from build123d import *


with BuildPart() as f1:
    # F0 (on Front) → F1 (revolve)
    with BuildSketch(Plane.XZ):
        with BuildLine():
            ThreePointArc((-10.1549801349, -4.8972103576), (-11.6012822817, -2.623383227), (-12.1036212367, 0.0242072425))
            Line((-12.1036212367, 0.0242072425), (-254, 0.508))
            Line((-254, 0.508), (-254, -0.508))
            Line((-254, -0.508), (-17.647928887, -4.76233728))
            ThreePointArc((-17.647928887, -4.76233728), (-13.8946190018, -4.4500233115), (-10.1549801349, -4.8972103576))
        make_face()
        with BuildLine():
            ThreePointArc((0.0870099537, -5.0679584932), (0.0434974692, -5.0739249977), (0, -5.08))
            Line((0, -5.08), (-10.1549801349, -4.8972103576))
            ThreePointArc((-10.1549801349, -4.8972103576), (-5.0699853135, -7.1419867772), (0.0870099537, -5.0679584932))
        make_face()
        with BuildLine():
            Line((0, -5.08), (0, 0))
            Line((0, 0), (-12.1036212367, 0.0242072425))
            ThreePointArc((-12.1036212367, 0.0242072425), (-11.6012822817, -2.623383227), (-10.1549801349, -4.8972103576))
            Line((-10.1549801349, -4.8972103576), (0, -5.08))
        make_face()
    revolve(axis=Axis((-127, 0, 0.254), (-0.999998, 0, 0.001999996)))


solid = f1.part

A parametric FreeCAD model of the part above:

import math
import FreeCAD as App
import Part
import Sketcher
from FreeCAD import Vector
Q = App.Units.Quantity

doc = App.newDocument("Part")
body = doc.addObject("PartDesign::Body", "Body")

sketch1 = body.newObject("Sketcher::SketchObject", "Sketch")
sketch1.AttachmentSupport = (doc.getObject("XZ_Plane"), [""])
sketch1.MapMode = "FlatFace"
sketch1.addGeometry([
    Part.LineSegment(Vector(-12.1, 0.02, 0), Vector(-254, 0.51, 0)),
    Part.LineSegment(Vector(-254, 0.51, 0), Vector(-254, -0.51, 0)),
    Part.LineSegment(Vector(-254, -0.51, 0), Vector(-17.65, -4.76, 0)),
    Part.ArcOfCircle(Part.Circle(Vector(-14.23, -23.12, 0), Vector(0, 0, 1), 18.67), math.radians(77), math.radians(101)),
    Part.ArcOfCircle(Part.Circle(Vector(-4.95, 0.01, 0), Vector(0, 0, 1), 7.15), math.radians(-137), math.radians(-45)),
    Part.ArcOfCircle(Part.Circle(Vector(2.46, -22.52, 0), Vector(0, 0, 1), 17.61), math.radians(97.74), math.radians(98.02)),
    Part.LineSegment(Vector(0, -5.08, 0), Vector(0, 0, 0)),
    Part.LineSegment(Vector(0, 0, 0), Vector(-12.1, 0.02, 0)),
], False)
sketch1.addGeometry(Part.LineSegment(Vector(2.5, -0.01, 0), Vector(-254, 0.51, 0)), True)
sketch1.addConstraint([
    Sketcher.Constraint("Coincident", 0, 2, 1, 1),
    Sketcher.Constraint("Coincident", 1, 2, 2, 1),
    Sketcher.Constraint("Coincident", 2, 2, 3, 2),
    Sketcher.Constraint("Coincident", 3, 1, 4, 1),
    Sketcher.Constraint("Coincident", 4, 2, 5, 1),
    Sketcher.Constraint("Coincident", 5, 2, 6, 1),
    Sketcher.Constraint("Coincident", 6, 2, 7, 1),
    Sketcher.Constraint("Coincident", 7, 2, 0, 1),
    Sketcher.Constraint("Vertical", 1),
    Sketcher.Constraint("Vertical", 6),
    Sketcher.Constraint("Coincident", 6, 2, -1, 1),
    Sketcher.Constraint("Coincident", 8, 2, 0, 2),
    Sketcher.Constraint("Parallel", 0, 7),
    Sketcher.Constraint("Parallel", 7, 8),
    Sketcher.Constraint("DistanceY", 6, 1, 6, 2, Q("0.2 in")),
    Sketcher.Constraint("DistanceX", 0, 2, -1, 1, Q("10 in")),
    Sketcher.Constraint("DistanceY", 1, 2, 1, 1, Q("0.04 in")),
    Sketcher.Constraint("DistanceY", -1, 1, 0, 2, Q("0.02 in")),
    Sketcher.Constraint("Radius", 3, 18.673547),
    Sketcher.Constraint("Radius", 4, 7.152882),
    Sketcher.Constraint("Radius", 5, 17.610723),
    Sketcher.Constraint("DistanceY", -1, 1, 4, 3, 0.009902),
    Sketcher.Constraint("DistanceX", 3, 3, 4, 2, 14.317698),
    Sketcher.Constraint("DistanceX", 3, 3, -1, 1, 14.230688),
    Sketcher.Constraint("DistanceX", 2, 2, -1, 1, 17.647929),
    Sketcher.Constraint("DistanceX", 3, 1, -1, 1, 10.15498),
    Sketcher.Constraint("DistanceX", 7, 2, -1, 1, 12.103621),
    Sketcher.Constraint("DistanceX", 4, 3, 5, 3, 7.40843),
    Sketcher.Constraint("Distance", 8, 256.503216),
])
revolution = body.newObject("PartDesign::Revolution", "Revolution")
revolution.Profile = sketch1
revolution.ReferenceAxis = (sketch1, ["Axis0"])
revolution.Angle = 360

doc.recompute()
